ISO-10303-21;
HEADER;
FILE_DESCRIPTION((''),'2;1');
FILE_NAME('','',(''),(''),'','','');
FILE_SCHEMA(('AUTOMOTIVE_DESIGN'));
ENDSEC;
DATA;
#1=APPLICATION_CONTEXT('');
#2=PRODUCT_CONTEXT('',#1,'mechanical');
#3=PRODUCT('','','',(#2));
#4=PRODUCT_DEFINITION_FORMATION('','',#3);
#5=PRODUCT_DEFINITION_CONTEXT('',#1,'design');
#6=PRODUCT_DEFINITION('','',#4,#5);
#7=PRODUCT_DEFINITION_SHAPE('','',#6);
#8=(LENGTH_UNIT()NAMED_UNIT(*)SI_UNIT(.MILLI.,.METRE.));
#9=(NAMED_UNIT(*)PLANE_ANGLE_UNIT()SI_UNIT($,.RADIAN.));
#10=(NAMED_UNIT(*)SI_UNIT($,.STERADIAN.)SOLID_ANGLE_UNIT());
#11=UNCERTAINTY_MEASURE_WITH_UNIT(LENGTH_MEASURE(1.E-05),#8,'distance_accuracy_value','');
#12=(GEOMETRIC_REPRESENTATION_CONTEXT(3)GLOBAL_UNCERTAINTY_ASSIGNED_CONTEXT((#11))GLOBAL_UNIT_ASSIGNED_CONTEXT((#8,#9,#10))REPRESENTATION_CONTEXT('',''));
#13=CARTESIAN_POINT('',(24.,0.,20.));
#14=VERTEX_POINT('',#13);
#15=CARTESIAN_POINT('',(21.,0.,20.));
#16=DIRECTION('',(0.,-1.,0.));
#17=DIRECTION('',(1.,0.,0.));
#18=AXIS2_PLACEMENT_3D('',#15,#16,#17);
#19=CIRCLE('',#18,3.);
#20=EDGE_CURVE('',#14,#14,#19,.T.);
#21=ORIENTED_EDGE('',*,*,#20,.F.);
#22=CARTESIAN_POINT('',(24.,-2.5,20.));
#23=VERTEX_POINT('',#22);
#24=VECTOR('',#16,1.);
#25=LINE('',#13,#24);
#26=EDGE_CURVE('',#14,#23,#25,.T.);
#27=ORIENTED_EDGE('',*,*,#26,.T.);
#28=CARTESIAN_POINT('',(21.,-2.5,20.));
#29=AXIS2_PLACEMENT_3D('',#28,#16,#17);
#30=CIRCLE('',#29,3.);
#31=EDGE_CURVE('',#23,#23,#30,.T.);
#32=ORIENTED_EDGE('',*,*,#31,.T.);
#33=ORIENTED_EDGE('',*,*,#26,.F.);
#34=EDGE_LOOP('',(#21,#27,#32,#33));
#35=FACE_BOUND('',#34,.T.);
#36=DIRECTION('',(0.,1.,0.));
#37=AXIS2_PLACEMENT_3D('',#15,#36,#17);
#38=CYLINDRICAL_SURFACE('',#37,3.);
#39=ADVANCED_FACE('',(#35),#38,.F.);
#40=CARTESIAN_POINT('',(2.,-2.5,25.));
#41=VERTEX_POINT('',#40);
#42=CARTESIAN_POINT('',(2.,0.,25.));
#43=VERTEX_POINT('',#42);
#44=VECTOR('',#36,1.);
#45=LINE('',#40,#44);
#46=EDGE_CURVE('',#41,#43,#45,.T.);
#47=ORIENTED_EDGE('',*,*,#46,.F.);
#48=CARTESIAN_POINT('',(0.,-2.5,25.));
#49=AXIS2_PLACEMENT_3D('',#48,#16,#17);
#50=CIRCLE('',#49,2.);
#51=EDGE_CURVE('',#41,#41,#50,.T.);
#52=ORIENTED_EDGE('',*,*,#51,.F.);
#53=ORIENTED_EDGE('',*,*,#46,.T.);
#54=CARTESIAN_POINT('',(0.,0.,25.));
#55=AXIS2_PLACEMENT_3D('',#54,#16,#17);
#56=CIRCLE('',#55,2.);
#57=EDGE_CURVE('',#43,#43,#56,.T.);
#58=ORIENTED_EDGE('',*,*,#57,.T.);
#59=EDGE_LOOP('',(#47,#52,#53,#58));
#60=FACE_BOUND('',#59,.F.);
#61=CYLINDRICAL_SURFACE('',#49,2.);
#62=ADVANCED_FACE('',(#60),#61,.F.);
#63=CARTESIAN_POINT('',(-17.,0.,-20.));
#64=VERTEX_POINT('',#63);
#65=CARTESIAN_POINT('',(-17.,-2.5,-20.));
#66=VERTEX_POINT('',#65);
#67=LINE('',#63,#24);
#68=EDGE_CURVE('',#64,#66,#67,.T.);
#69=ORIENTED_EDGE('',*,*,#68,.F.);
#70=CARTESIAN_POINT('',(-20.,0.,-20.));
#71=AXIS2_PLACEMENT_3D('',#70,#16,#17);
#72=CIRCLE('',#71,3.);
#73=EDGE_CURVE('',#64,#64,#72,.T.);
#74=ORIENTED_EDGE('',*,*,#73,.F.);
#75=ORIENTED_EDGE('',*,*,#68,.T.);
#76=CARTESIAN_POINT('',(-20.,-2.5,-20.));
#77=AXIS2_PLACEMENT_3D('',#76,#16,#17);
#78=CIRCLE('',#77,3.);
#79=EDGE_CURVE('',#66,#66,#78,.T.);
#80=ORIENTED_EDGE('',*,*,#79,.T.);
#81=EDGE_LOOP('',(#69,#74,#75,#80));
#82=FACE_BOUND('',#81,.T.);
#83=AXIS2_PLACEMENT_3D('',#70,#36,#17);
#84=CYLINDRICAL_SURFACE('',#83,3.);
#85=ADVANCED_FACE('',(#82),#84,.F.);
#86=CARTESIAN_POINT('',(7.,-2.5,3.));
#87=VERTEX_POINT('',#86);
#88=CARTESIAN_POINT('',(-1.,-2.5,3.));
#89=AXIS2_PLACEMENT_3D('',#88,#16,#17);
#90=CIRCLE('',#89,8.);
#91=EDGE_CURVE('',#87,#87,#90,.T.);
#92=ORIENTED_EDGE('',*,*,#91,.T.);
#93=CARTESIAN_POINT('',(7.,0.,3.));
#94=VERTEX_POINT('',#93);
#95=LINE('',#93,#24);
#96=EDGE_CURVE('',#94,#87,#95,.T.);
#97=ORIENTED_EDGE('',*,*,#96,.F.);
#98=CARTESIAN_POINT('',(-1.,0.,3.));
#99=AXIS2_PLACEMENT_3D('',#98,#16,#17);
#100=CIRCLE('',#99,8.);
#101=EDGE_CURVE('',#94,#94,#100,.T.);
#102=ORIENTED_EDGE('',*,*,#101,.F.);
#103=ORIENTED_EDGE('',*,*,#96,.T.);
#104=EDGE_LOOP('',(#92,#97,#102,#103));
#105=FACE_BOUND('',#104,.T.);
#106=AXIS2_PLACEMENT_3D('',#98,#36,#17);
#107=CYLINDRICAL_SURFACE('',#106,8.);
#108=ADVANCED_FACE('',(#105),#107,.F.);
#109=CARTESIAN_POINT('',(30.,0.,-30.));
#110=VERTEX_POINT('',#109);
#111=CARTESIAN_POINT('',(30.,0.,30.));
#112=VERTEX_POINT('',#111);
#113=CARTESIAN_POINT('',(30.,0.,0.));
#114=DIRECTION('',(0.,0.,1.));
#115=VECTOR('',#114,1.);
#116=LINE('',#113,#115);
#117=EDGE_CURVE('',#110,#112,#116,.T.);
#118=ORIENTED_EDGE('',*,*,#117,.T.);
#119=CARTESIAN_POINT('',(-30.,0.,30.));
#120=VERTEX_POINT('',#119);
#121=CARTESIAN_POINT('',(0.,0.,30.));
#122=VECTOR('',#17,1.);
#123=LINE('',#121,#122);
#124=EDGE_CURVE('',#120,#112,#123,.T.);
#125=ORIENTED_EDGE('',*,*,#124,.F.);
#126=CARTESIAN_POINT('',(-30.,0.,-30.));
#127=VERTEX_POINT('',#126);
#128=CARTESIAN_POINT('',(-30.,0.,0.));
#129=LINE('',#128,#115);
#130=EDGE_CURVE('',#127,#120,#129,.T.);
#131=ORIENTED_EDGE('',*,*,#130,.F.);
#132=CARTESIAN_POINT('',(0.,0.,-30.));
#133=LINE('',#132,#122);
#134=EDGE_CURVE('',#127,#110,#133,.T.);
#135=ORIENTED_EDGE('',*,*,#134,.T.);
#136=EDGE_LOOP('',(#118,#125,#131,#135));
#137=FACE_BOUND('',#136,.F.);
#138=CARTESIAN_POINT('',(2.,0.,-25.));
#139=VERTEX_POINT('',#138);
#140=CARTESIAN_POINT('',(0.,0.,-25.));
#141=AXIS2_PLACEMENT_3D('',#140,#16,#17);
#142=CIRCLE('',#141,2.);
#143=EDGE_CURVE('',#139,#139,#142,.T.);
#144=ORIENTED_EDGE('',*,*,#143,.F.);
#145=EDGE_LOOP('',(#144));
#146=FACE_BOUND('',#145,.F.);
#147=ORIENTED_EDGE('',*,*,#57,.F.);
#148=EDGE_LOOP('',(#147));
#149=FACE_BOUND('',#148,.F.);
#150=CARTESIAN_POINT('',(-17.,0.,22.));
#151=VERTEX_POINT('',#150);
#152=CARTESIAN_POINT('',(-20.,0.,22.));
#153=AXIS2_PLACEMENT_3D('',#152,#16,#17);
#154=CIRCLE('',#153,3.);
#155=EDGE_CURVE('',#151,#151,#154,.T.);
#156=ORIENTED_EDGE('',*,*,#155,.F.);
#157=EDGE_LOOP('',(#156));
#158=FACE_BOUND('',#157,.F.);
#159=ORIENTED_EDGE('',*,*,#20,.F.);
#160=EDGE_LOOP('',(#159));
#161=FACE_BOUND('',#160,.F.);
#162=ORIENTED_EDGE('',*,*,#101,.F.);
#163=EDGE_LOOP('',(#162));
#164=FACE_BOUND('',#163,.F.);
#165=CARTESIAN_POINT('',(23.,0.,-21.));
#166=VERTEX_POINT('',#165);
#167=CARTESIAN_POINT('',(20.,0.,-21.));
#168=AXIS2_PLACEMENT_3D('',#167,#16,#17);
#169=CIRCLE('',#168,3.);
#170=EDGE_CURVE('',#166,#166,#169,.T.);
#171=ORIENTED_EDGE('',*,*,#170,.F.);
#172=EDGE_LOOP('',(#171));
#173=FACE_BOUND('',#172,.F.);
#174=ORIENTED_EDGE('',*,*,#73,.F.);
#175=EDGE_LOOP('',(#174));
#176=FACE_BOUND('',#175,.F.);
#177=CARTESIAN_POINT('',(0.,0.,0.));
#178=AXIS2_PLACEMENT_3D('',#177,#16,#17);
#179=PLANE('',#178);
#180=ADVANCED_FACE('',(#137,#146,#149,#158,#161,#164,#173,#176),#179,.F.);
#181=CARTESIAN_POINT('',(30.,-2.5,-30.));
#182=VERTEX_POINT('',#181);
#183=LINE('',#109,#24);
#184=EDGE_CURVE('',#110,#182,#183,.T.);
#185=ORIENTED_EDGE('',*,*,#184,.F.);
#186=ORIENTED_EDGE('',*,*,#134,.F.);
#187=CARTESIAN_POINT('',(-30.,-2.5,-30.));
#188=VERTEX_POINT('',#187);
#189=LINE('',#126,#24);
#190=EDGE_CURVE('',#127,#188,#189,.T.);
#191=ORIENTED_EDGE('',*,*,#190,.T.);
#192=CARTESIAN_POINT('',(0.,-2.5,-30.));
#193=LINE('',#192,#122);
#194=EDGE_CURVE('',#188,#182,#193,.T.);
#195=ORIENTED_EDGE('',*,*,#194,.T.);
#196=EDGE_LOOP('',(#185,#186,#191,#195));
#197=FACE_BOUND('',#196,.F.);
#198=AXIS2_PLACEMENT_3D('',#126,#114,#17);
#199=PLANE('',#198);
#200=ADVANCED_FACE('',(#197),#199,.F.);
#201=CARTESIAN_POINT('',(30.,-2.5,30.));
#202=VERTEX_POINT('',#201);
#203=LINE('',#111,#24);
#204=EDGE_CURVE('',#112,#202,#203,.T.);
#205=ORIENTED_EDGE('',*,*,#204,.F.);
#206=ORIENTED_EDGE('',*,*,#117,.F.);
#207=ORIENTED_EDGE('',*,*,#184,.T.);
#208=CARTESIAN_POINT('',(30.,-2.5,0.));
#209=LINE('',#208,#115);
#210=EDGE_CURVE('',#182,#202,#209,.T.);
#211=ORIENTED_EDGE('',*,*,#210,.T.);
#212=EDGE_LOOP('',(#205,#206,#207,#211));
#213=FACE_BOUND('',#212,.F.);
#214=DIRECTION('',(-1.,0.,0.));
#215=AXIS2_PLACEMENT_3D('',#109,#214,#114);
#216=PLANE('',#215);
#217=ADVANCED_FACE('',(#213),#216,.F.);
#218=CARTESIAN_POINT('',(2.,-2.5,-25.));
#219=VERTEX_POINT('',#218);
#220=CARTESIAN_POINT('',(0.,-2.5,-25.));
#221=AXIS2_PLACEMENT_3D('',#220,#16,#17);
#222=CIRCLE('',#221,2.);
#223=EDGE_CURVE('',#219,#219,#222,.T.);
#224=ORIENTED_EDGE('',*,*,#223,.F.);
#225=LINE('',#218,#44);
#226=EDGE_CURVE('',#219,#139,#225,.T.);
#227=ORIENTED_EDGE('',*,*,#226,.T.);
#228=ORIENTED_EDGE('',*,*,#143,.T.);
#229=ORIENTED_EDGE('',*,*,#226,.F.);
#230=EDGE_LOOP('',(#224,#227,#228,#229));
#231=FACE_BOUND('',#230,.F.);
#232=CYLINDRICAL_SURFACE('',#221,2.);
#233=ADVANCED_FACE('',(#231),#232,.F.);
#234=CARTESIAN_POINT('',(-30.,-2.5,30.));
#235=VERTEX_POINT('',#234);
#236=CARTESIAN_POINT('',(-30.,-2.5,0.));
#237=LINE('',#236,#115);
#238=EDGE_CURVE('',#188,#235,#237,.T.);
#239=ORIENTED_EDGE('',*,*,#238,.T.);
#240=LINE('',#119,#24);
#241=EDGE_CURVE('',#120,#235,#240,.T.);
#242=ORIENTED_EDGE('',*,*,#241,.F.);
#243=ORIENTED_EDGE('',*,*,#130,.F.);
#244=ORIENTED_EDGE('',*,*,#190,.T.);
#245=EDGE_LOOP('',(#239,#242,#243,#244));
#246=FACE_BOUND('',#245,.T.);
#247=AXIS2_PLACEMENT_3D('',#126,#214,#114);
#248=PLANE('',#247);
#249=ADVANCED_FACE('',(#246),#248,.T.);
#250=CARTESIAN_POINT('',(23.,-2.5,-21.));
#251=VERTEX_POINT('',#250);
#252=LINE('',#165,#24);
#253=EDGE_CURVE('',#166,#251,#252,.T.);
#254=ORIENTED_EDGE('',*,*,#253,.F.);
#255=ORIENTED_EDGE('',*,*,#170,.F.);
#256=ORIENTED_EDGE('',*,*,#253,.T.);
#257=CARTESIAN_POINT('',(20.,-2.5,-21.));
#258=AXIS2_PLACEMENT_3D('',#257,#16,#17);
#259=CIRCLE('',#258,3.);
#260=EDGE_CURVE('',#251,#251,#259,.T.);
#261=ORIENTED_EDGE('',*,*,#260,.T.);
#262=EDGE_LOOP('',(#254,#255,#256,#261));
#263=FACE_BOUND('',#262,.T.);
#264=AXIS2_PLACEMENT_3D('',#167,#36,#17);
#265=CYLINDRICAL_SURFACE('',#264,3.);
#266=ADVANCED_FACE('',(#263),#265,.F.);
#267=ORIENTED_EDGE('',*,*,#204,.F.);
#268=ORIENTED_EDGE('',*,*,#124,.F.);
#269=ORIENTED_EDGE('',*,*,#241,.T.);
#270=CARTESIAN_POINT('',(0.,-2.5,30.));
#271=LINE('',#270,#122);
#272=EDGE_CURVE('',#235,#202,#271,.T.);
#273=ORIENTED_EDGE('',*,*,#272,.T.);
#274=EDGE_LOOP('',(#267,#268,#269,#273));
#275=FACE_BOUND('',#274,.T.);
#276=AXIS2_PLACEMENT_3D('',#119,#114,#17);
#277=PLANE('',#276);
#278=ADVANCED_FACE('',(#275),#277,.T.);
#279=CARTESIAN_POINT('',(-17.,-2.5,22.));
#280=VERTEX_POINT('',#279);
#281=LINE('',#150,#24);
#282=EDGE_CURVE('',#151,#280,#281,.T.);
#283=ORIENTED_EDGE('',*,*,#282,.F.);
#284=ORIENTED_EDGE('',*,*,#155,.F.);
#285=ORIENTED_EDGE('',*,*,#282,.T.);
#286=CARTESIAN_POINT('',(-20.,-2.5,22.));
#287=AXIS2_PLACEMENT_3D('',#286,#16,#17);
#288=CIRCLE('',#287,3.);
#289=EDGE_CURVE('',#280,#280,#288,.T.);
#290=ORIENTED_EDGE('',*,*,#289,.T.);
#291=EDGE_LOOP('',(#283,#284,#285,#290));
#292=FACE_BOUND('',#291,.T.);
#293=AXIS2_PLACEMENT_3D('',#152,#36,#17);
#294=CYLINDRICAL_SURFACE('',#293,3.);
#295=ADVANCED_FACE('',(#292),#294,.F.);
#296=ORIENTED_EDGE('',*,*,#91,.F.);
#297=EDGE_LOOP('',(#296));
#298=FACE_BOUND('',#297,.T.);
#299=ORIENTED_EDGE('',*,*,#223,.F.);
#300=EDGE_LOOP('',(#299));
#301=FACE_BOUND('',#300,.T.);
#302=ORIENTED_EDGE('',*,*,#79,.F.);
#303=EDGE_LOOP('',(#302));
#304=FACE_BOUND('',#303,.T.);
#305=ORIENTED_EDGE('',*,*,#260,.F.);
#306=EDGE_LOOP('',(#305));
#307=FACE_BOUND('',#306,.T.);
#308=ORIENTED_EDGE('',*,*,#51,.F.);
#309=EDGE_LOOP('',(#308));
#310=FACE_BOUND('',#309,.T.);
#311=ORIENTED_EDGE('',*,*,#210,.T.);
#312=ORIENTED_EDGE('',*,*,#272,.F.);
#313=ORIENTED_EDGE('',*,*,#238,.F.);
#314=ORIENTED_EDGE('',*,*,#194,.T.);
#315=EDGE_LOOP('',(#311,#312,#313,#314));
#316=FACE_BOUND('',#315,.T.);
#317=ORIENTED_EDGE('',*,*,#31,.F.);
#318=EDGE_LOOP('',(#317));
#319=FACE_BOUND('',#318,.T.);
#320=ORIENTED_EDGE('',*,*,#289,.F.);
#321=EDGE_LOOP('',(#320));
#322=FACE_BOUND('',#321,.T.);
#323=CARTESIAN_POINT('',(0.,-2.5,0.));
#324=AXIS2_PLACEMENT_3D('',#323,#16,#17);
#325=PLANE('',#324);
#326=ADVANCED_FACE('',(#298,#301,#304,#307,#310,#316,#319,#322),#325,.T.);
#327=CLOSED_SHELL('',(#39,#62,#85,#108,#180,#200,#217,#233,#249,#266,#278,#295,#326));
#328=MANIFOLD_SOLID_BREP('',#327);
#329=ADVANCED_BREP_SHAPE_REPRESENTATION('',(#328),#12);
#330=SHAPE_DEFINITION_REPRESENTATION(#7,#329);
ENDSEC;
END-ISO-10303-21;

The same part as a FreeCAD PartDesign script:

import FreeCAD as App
import Part
import Sketcher

V = App.Vector


def add_polygon(sketch, points):
    """Adds a closed chain of lines whose ends are joined by coincident constraints."""
    first, n = sketch.GeometryCount, len(points)
    for a, b in zip(points, points[1:] + points[:1]):
        sketch.addGeometry(Part.LineSegment(App.Vector(*a, 0), App.Vector(*b, 0)), False)
    for i in range(n):
        sketch.addConstraint(Sketcher.Constraint("Coincident", first + i, 2, first + (i + 1) % n, 1))

doc = App.newDocument("Part")
body = doc.addObject("PartDesign::Body", "Body")

# Sketch on XZ plane
sketch1 = body.newObject("Sketcher::SketchObject", "Sketch")
sketch1.AttachmentSupport = (doc.getObject("XZ_Plane"), [""])
sketch1.MapMode = "FlatFace"
add_polygon(sketch1, [(-30, 30), (-30, -30), (30, -30), (30, 30)])  # lines 0-3
sketch1.addGeometry(Part.Circle(V(-20, -20, 0), V(0, 0, 1), 3), False)  # 4
sketch1.addGeometry(Part.Circle(V(20, -21, 0), V(0, 0, 1), 3), False)  # 5
sketch1.addGeometry(Part.Circle(V(-1, 3, 0), V(0, 0, 1), 8), False)  # 6
sketch1.addGeometry(Part.Circle(V(-20, 22, 0), V(0, 0, 1), 3), False)  # 7
sketch1.addGeometry(Part.Circle(V(21, 20, 0), V(0, 0, 1), 3), False)  # 8
sketch1.addConstraint(Sketcher.Constraint("Vertical", 0))
sketch1.addConstraint(Sketcher.Constraint("Horizontal", 1))
sketch1.addConstraint(Sketcher.Constraint("Vertical", 2))
sketch1.addConstraint(Sketcher.Constraint("Horizontal", 3))
sketch1.addConstraint(Sketcher.Constraint("Equal", 4, 5))
sketch1.addConstraint(Sketcher.Constraint("Equal", 5, 7))
sketch1.addConstraint(Sketcher.Constraint("Equal", 7, 8))
sketch1.addConstraint(Sketcher.Constraint("Symmetric", 0, 2, 2, 2, -1, 1))
sketch1.addConstraint(Sketcher.Constraint("Vertical", 4, 3, 7, 3))
sketch1.addConstraint(Sketcher.Constraint("Equal", 3, 0))
sketch1.addConstraint(Sketcher.Constraint("Diameter", 4, 6.0))
sketch1.addConstraint(Sketcher.Constraint("Diameter", 6, 16.0))
sketch1.addConstraint(Sketcher.Constraint("DistanceX", 1, 1, 1, 2, 60.0))
sketch1.addConstraint(Sketcher.Constraint("DistanceX", 4, 3, -1, 1, 20.0))
sketch1.addConstraint(Sketcher.Constraint("DistanceY", 4, 3, -1, 1, 20.0))
sketch1.addConstraint(Sketcher.Constraint("DistanceX", -1, 1, 5, 3, 20.0))
sketch1.addConstraint(Sketcher.Constraint("DistanceY", 5, 3, -1, 1, 21.0))
sketch1.addConstraint(Sketcher.Constraint("DistanceX", 6, 3, -1, 1, 1.0))
sketch1.addConstraint(Sketcher.Constraint("DistanceY", -1, 1, 6, 3, 3.0))
sketch1.addConstraint(Sketcher.Constraint("DistanceY", -1, 1, 7, 3, 22.0))
sketch1.addConstraint(Sketcher.Constraint("DistanceX", -1, 1, 8, 3, 21.0))
sketch1.addConstraint(Sketcher.Constraint("DistanceY", -1, 1, 8, 3, 20.0))
pad1 = body.newObject("PartDesign::Pad", "Pad")
pad1.Profile = sketch1
pad1.Length = 2.5

# Sketch on XZ plane
sketch2 = body.newObject("Sketcher::SketchObject", "Sketch001")
sketch2.AttachmentSupport = (doc.getObject("XZ_Plane"), [""])
sketch2.MapMode = "FlatFace"
sketch2.AttachmentOffset = App.Placement(V(0, 0, 2.5), App.Rotation())
sketch2.addGeometry(Part.Circle(V(0, 25, 0), V(0, 0, 1), 2), False)
sketch2.addGeometry(Part.Circle(V(0, -25, 0), V(0, 0, 1), 2), False)
sketch2.addConstraint(Sketcher.Constraint("Equal", 0, 1))
sketch2.addConstraint(Sketcher.Constraint("Symmetric", 0, 3, 1, 3, -1, 1))
sketch2.addConstraint(Sketcher.Constraint("PointOnObject", 0, 3, -2))
sketch2.addConstraint(Sketcher.Constraint("Diameter", 0, 4.0))
sketch2.addConstraint(Sketcher.Constraint("DistanceY", -1, 1, 0, 3, 25.0))
pocket1 = body.newObject("PartDesign::Pocket", "Pocket")
pocket1.Profile = sketch2
pocket1.Length = 25

doc.recompute()
